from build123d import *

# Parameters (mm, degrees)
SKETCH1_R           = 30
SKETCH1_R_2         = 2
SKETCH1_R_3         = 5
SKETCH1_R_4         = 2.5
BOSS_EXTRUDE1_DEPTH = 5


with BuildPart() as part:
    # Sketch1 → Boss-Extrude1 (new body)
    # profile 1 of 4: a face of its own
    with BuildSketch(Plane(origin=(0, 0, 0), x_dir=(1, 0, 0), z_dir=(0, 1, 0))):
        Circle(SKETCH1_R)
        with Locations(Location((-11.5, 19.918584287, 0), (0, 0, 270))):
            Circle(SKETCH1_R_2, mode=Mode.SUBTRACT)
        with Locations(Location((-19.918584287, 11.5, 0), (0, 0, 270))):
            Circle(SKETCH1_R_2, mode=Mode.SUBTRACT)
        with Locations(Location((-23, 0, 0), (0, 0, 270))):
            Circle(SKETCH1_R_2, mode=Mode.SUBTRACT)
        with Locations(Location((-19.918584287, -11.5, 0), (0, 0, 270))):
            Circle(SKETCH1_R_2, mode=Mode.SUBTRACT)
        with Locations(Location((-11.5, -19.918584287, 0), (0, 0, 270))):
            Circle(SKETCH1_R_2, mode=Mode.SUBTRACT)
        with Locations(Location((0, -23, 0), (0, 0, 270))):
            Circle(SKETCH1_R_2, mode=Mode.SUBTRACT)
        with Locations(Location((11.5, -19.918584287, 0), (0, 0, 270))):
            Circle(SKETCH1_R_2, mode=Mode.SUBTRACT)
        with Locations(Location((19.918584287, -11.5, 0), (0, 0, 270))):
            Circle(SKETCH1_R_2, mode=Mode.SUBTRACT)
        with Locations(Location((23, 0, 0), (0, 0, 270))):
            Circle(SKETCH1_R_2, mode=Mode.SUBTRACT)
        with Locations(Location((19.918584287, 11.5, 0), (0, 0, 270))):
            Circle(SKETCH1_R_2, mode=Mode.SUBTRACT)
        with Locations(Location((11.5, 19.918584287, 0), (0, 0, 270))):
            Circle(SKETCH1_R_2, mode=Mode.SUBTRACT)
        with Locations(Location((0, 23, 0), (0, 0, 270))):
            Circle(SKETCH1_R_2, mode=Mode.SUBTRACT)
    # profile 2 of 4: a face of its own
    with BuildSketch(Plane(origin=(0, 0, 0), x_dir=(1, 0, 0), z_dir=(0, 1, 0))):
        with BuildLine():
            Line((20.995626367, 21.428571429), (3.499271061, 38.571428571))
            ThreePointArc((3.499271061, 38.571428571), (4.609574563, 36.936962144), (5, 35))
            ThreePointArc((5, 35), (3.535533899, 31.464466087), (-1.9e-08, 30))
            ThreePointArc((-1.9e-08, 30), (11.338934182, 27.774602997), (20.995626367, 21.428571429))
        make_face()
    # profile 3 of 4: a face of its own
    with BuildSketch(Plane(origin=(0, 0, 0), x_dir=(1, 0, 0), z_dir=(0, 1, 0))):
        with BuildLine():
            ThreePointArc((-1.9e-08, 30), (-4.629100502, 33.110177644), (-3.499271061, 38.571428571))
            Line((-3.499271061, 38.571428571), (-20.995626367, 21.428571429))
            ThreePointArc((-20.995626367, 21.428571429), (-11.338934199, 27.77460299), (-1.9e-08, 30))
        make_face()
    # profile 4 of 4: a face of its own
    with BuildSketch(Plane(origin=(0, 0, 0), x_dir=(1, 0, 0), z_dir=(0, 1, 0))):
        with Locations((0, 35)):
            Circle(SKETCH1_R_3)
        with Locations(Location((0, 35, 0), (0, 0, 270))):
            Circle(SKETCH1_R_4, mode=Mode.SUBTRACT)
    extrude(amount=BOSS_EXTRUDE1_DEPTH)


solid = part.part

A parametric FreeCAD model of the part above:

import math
import FreeCAD as App
import Part
import Sketcher

doc = App.newDocument("Part")
body = doc.addObject("PartDesign::Body", "Body")

# Sketch on XZ plane
sketch1 = body.newObject("Sketcher::SketchObject", "Sketch")
sketch1.AttachmentSupport = (doc.getObject("XZ_Plane"), [""])
sketch1.MapMode = "FlatFace"
sketch1.addGeometry([
    Part.LineSegment(App.Vector(20.995626, -21.428571, 0), App.Vector(3.499271, -38.571429, 0)),  # 0
    Part.ArcOfCircle(Part.Circle(App.Vector(0, -35, 0), App.Vector(0, 0, 1), 5), math.radians(-134.415309), math.radians(-45.584691)),  # 1
    Part.LineSegment(App.Vector(-3.499271, -38.571429, 0), App.Vector(-20.995626, -21.428571, 0)),  # 2
    Part.ArcOfCircle(Part.Circle(App.Vector(0, 0, 0), App.Vector(0, 0, 1), 30), math.radians(-45.584691), math.radians(225.584691)),  # 3
    Part.Circle(App.Vector(-11.5, 19.918584, 0), App.Vector(0, 0, 1), 2),  # 4
    Part.Circle(App.Vector(-19.918584, 11.5, 0), App.Vector(0, 0, 1), 2),  # 5
    Part.Circle(App.Vector(0, 23, 0), App.Vector(0, 0, 1), 2),  # 6
    Part.Circle(App.Vector(11.5, 19.918584, 0), App.Vector(0, 0, 1), 2),  # 7
    Part.Circle(App.Vector(19.918584, 11.5, 0), App.Vector(0, 0, 1), 2),  # 8
    Part.Circle(App.Vector(-23, 0, 0), App.Vector(0, 0, 1), 2),  # 9
    Part.Circle(App.Vector(-19.918584, -11.5, 0), App.Vector(0, 0, 1), 2),  # 10
    Part.Circle(App.Vector(-11.5, -19.918584, 0), App.Vector(0, 0, 1), 2),  # 11
    Part.Circle(App.Vector(23, 0, 0), App.Vector(0, 0, 1), 2),  # 12
    Part.Circle(App.Vector(19.918584, -11.5, 0), App.Vector(0, 0, 1), 2),  # 13
    Part.Circle(App.Vector(0, -23, 0), App.Vector(0, 0, 1), 2),  # 14
    Part.Circle(App.Vector(11.5, -19.918584, 0), App.Vector(0, 0, 1), 2),  # 15
    Part.Circle(App.Vector(0, -35, 0), App.Vector(0, 0, 1), 2.5),  # 16
], False)
sketch1.addConstraint([
    Sketcher.Constraint("Tangent", 0, 2, 1, 2),
    Sketcher.Constraint("Tangent", 1, 1, 2, 1),
    Sketcher.Constraint("Tangent", 2, 2, 3, 2),
    Sketcher.Constraint("Tangent", 3, 1, 0, 1),
    Sketcher.Constraint("Coincident", 3, 3, -1, 1),
    Sketcher.Constraint("Coincident", 16, 3, 1, 3),
    Sketcher.Constraint("Equal", 4, 5),
    Sketcher.Constraint("Equal", 5, 6),
    Sketcher.Constraint("Equal", 6, 7),
    Sketcher.Constraint("Equal", 7, 8),
    Sketcher.Constraint("Equal", 8, 9),
    Sketcher.Constraint("Equal", 9, 10),
    Sketcher.Constraint("Equal", 10, 11),
    Sketcher.Constraint("Equal", 11, 12),
    Sketcher.Constraint("Equal", 12, 13),
    Sketcher.Constraint("Equal", 13, 14),
    Sketcher.Constraint("Equal", 14, 15),
    Sketcher.Constraint("Symmetric", 8, 3, 10, 3, -1, 1),
    Sketcher.Constraint("Symmetric", 7, 3, 11, 3, -1, 1),
    Sketcher.Constraint("Symmetric", 9, 3, 12, 3, -1, 1),
    Sketcher.Constraint("Symmetric", 5, 3, 13, 3, -1, 1),
    Sketcher.Constraint("Symmetric", 6, 3, 14, 3, -1, 1),
    Sketcher.Constraint("Symmetric", 4, 3, 15, 3, -1, 1),
    Sketcher.Constraint("Symmetric", 4, 3, 7, 3, -2),
    Sketcher.Constraint("Symmetric", 5, 3, 8, 3, -2),
    Sketcher.Constraint("PointOnObject", 1, 3, -2),
    Sketcher.Constraint("PointOnObject", 6, 3, -2),
    Sketcher.Constraint("PointOnObject", 9, 3, -1),
    Sketcher.Constraint("Diameter", 4, 4.0),
    Sketcher.Constraint("Diameter", 16, 5.0),
    Sketcher.Constraint("Radius", 1, 5.0),
    Sketcher.Constraint("Radius", 3, 30.0),
    Sketcher.Constraint("DistanceY", 1, 3, -1, 1, 35.0),
    Sketcher.Constraint("DistanceY", -1, 1, 6, 3, 23.0),
    Sketcher.Constraint("DistanceX", 9, 3, -1, 1, 23.0),
    Sketcher.Constraint("DistanceX", 4, 3, 7, 3, 23.0),
    Sketcher.Constraint("DistanceY", 10, 3, 5, 3, 23.0),
    Sketcher.Constraint("DistanceX", 5, 3, 8, 3, 39.837169),
    Sketcher.Constraint("DistanceY", -1, 1, 4, 3, 19.918584),
])
pad1 = body.newObject("PartDesign::Pad", "Pad")
pad1.Profile = sketch1
pad1.Length = 5
pad1.Reversed = True

doc.recompute()
